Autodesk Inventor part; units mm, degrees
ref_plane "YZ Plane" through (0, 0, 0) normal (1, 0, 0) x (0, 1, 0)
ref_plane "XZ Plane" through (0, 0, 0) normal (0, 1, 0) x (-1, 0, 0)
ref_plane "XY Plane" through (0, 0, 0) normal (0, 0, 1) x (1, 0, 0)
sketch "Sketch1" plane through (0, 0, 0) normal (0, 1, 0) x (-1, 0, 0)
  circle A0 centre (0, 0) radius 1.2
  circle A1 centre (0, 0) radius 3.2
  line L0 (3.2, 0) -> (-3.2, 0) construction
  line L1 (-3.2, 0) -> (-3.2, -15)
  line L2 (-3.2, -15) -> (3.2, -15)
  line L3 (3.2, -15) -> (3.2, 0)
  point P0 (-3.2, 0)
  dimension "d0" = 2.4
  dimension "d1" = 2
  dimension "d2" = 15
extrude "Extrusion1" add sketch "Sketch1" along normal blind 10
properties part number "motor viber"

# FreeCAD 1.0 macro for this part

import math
import FreeCAD as App
import Part
import Sketcher

V = App.Vector

doc = App.newDocument("Part")
body = doc.addObject("PartDesign::Body", "Body")

sketch1 = body.newObject("Sketcher::SketchObject", "Sketch")
sketch1.AttachmentSupport = (doc.getObject("XZ_Plane"), [""])
sketch1.MapMode = "FlatFace"
sketch1.addGeometry([
    Part.ArcOfCircle(Part.Circle(V(0, 0, 0), V(0, 0, 1), 3.2), math.radians(0), math.radians(180)),
    Part.LineSegment(V(3.2, 0, 0), V(3.2, -15, 0)),
    Part.LineSegment(V(3.2, -15, 0), V(-3.2, -15, 0)),
    Part.LineSegment(V(-3.2, -15, 0), V(-3.2, 0, 0)),
    Part.Circle(V(0, 0, 0), V(0, 0, 1), 1.2),
], False)
sketch1.addConstraint([
    Sketcher.Constraint("Tangent", 0, 1, 1, 1),
    Sketcher.Constraint("Coincident", 1, 2, 2, 1),
    Sketcher.Constraint("Coincident", 2, 2, 3, 1),
    Sketcher.Constraint("Tangent", 3, 2, 0, 2),
    Sketcher.Constraint("Vertical", 1),
    Sketcher.Constraint("Horizontal", 2),
    Sketcher.Constraint("Vertical", 3),
    Sketcher.Constraint("Coincident", 0, 3, -1, 1),
    Sketcher.Constraint("Coincident", 4, 3, -1, 1),
    Sketcher.Constraint("Diameter", 4, 2.4),
    Sketcher.Constraint("DistanceY", 1, 2, 1, 1, 15.0),
    Sketcher.Constraint("Radius", 0, 3.2),
])
pad1 = body.newObject("PartDesign::Pad", "Pad")
pad1.Profile = sketch1
pad1.Length = 10
pad1.Reversed = True

doc.recompute()
